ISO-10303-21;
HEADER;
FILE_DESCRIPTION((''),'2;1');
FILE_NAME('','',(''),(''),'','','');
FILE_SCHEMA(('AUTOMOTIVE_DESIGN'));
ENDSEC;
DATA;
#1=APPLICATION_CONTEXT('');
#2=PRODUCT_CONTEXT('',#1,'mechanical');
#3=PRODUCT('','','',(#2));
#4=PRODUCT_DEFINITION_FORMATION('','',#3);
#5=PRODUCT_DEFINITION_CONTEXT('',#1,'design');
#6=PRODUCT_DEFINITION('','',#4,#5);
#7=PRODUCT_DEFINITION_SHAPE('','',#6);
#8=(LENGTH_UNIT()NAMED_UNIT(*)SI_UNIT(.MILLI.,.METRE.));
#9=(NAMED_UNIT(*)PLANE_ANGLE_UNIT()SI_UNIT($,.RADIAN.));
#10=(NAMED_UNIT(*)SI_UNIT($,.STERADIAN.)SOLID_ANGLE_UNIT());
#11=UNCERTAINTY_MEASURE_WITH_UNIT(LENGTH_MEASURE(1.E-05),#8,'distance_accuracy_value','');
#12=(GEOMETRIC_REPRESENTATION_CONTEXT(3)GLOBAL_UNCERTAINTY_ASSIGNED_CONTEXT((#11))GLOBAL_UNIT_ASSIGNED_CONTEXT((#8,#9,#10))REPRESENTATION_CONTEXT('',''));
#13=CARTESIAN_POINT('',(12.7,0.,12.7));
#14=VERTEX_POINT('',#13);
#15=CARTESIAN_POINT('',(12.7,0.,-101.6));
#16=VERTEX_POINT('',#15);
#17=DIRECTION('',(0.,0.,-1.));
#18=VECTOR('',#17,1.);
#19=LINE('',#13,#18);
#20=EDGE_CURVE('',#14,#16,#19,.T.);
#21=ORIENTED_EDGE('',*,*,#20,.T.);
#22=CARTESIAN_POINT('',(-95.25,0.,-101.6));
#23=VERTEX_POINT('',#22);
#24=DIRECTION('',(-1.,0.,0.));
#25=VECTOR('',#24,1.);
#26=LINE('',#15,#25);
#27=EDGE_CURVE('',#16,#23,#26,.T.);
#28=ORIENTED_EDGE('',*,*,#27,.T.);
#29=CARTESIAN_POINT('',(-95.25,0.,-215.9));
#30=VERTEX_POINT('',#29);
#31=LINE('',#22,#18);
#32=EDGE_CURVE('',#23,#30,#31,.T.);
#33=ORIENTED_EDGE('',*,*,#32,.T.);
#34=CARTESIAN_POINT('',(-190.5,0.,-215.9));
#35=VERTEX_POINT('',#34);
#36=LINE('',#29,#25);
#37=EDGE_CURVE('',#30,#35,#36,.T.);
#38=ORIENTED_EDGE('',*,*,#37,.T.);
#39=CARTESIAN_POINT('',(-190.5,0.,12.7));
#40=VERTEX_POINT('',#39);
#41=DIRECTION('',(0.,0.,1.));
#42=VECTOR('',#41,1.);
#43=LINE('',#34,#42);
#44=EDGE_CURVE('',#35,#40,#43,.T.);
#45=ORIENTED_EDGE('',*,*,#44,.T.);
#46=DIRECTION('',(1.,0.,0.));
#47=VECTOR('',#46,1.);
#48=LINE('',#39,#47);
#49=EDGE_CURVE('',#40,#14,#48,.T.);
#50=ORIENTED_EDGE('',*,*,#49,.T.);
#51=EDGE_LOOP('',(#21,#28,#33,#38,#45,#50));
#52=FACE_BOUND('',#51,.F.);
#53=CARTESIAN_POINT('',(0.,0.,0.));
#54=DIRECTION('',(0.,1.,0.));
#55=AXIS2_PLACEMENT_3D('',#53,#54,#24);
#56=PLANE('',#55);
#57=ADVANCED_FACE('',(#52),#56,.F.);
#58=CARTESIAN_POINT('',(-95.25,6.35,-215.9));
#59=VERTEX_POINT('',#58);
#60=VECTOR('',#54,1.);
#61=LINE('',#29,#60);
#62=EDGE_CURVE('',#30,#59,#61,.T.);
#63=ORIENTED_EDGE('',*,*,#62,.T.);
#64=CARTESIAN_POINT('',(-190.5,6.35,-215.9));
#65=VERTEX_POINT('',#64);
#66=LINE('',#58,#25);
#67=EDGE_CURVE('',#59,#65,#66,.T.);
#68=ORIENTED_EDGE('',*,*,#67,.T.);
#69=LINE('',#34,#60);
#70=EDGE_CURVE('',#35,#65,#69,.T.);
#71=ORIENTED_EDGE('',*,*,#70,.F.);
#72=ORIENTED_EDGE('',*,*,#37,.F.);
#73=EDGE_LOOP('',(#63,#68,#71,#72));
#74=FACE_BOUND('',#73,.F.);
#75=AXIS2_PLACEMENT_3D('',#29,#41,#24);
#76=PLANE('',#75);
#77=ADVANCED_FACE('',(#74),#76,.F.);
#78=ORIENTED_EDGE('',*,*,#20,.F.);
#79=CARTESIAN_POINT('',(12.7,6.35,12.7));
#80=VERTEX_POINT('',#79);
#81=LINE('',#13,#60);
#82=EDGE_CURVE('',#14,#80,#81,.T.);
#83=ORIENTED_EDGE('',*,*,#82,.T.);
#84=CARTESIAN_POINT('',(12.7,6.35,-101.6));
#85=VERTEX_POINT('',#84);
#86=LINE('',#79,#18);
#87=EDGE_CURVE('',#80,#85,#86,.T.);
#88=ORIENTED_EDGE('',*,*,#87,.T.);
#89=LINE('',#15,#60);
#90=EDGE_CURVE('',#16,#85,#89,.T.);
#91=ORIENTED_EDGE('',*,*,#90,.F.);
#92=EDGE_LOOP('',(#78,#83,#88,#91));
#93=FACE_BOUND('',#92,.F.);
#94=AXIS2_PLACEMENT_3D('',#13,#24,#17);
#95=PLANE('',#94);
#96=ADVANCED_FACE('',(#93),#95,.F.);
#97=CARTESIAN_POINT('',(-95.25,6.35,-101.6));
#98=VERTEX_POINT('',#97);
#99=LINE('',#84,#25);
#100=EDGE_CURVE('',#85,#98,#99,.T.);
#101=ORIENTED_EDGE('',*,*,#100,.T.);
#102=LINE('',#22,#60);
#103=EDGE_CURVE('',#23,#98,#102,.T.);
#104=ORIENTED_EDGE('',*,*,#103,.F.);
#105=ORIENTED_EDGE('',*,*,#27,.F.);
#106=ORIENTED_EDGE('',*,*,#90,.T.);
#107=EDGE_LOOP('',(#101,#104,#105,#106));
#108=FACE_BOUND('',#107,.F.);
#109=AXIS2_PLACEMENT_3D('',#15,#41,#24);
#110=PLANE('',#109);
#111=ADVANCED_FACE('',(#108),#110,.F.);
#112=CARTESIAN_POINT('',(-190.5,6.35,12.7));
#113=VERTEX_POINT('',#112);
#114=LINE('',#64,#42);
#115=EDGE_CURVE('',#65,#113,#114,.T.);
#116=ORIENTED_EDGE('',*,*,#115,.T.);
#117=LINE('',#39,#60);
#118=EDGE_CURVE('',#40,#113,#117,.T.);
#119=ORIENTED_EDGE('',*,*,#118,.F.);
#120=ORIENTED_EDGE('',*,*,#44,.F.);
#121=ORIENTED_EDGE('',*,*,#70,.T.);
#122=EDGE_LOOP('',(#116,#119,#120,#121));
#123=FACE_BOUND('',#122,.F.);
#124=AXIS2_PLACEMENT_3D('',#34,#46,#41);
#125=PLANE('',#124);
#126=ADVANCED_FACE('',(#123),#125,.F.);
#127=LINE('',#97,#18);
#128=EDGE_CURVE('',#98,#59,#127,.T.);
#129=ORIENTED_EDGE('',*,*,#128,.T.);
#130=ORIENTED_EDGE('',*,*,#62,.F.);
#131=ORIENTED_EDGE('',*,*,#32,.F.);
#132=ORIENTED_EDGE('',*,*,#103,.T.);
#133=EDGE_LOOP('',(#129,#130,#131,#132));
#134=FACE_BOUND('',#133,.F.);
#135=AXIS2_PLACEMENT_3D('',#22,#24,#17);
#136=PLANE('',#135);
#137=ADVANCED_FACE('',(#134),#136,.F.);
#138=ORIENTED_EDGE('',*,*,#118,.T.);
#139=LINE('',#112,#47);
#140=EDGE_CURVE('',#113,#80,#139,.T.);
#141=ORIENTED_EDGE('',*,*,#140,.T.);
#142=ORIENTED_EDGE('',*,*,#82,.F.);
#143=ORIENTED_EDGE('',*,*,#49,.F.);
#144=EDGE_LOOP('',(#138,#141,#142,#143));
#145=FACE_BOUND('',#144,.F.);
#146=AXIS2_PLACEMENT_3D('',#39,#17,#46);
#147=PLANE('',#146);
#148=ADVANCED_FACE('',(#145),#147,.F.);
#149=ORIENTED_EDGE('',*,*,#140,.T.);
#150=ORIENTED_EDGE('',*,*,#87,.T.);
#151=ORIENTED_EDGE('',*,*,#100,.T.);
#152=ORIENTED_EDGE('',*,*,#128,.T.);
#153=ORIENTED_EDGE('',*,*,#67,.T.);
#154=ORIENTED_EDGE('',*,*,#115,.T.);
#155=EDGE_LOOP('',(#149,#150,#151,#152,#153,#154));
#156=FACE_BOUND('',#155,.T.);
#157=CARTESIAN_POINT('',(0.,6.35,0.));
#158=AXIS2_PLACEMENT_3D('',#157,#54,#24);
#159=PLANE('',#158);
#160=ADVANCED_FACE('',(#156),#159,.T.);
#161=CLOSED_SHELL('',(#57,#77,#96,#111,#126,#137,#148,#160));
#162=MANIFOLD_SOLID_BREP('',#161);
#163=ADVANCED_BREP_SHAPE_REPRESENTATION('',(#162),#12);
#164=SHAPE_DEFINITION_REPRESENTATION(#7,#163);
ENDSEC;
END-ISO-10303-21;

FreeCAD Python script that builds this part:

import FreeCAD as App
import Part
import Sketcher

V = App.Vector
Q = App.Units.Quantity


def add_polygon(sketch, points):
    """Adds a closed chain of lines whose ends are joined by coincident constraints."""
    first, n = sketch.GeometryCount, len(points)
    for a, b in zip(points, points[1:] + points[:1]):
        sketch.addGeometry(Part.LineSegment(App.Vector(*a, 0), App.Vector(*b, 0)), False)
    for i in range(n):
        sketch.addConstraint(Sketcher.Constraint("Coincident", first + i, 2, first + (i + 1) % n, 1))

doc = App.newDocument("Part")
body = doc.addObject("PartDesign::Body", "Body")

sketch1 = body.newObject("Sketcher::SketchObject", "Sketch")
sketch1.AttachmentSupport = (doc.getObject("XZ_Plane"), [""])
sketch1.MapMode = "FlatFace"
add_polygon(sketch1, [(-95.25, -215.9), (-190.5, -215.9), (-190.5, 12.7), (12.7, 12.7), (12.7, -101.6), (-95.25, -101.6)])
sketch1.addConstraint([
    Sketcher.Constraint("Horizontal", 0),
    Sketcher.Constraint("Vertical", 1),
    Sketcher.Constraint("Horizontal", 2),
    Sketcher.Constraint("Vertical", 3),
    Sketcher.Constraint("Horizontal", 4),
    Sketcher.Constraint("Vertical", 5),
    Sketcher.Constraint("Equal", 3, 5),
    Sketcher.Constraint("DistanceX", 2, 1, 2, 2, Q("8 in")),
    Sketcher.Constraint("DistanceY", -1, 1, 1, 2, Q("0.5 in")),
    Sketcher.Constraint("DistanceX", -1, 1, 2, 2, Q("0.5 in")),
    Sketcher.Constraint("DistanceY", 1, 1, 1, 2, Q("9 in")),
    Sketcher.Constraint("DistanceX", 0, 2, 0, 1, Q("3.75 in")),
])
pad1 = body.newObject("PartDesign::Pad", "Pad")
pad1.Profile = sketch1
pad1.Length = Q("0.25 in")
pad1.Reversed = True

doc.recompute()
